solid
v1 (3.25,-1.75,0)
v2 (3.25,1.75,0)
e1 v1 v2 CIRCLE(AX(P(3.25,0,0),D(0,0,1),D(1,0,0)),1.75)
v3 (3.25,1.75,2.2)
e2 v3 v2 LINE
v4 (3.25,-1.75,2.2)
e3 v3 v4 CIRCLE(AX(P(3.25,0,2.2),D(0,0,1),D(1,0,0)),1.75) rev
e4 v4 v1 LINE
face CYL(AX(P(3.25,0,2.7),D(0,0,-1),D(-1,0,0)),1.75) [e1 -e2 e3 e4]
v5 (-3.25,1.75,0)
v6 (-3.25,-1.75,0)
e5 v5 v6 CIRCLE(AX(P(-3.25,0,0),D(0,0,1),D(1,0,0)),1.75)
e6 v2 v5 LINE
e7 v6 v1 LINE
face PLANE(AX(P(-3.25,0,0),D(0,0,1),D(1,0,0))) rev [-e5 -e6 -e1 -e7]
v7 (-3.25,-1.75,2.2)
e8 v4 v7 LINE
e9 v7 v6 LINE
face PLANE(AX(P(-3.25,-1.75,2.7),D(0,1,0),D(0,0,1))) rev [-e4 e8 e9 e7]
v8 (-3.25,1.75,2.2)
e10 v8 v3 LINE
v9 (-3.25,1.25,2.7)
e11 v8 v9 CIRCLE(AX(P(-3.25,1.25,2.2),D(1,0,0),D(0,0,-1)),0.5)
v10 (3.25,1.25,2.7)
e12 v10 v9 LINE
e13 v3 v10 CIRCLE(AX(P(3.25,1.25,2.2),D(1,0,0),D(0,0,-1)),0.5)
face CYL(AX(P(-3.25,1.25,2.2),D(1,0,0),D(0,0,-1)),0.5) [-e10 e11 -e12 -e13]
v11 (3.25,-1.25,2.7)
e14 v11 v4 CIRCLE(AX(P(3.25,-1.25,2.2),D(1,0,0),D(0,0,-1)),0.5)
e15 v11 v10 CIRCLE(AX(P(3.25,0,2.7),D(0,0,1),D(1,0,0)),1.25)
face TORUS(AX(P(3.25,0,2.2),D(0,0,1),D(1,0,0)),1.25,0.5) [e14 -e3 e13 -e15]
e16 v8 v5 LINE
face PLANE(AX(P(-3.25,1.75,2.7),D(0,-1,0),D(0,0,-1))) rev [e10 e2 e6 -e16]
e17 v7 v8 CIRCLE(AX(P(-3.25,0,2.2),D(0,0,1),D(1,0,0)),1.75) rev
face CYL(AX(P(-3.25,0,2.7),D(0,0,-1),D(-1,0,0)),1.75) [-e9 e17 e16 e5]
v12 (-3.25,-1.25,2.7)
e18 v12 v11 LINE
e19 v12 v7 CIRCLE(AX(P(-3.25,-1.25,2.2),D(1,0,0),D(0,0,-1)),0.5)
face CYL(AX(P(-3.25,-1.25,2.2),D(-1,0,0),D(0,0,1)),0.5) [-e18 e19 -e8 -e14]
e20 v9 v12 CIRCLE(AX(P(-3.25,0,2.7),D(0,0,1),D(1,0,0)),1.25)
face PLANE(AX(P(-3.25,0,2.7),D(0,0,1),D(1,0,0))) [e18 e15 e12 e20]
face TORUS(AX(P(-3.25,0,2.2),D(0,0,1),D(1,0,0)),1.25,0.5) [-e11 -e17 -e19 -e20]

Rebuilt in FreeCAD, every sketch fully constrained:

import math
import FreeCAD as App
import Part
import Sketcher


def edges_at(feature, points):
    """Names of the edges that pass closest to the given points."""
    edges = feature.Shape.Edges
    near = lambda p: min(range(len(edges)), key=lambda i: edges[i].distToShape(Part.Vertex(*p))[0])
    return sorted({f"Edge{near(p) + 1}" for p in points})

doc = App.newDocument("Part")
params = doc.addObject("Spreadsheet::Sheet", "Params")
for row, (alias, value) in enumerate([
    ("sketch1_radius", "1.75 mm"),
    ("sketch1_width", "6.5 mm"),
    ("pad1_length", "2.7 mm"),
    ("fillet_radius", "0.5 mm"),
], start=1):
    params.set(f"A{row}", alias)
    params.set(f"B{row}", "=" + value)
    params.setAlias(f"B{row}", alias)

body = doc.addObject("PartDesign::Body", "Body")

# Sketch on XY plane
sketch1 = body.newObject("Sketcher::SketchObject", "Sketch")
sketch1.AttachmentSupport = (doc.getObject("XY_Plane"), [""])
sketch1.MapMode = "FlatFace"
sketch1.addGeometry([
    Part.LineSegment(App.Vector(3.2, 1.8, 0), App.Vector(-3.2, 1.8, 0)),
    Part.ArcOfCircle(Part.Circle(App.Vector(-3.2, 0, 0), App.Vector(0, 0, 1), 1.8), math.radians(90), math.radians(270)),
    Part.LineSegment(App.Vector(-3.2, -1.8, 0), App.Vector(3.2, -1.8, 0)),
    Part.ArcOfCircle(Part.Circle(App.Vector(3.2, 0, 0), App.Vector(0, 0, 1), 1.8), math.radians(-90), math.radians(90)),
], False)
sketch1.addConstraint([
    Sketcher.Constraint("Tangent", 0, 2, 1, 1),
    Sketcher.Constraint("Tangent", 1, 2, 2, 1),
    Sketcher.Constraint("Tangent", 2, 2, 3, 1),
    Sketcher.Constraint("Tangent", 3, 2, 0, 1),
    Sketcher.Constraint("Horizontal", 0),
    Sketcher.Constraint("Horizontal", 2),
    Sketcher.Constraint("Symmetric", 1, 3, 3, 3, -1, 1),
    Sketcher.Constraint("Radius", 1, 1.75),
    Sketcher.Constraint("DistanceX", 0, 2, 0, 1, 6.5),
])
sketch1.setExpression("Constraints[7]", "Params.sketch1_radius")
sketch1.setExpression("Constraints[8]", "Params.sketch1_width")
pad1 = body.newObject("PartDesign::Pad", "Pad")
pad1.Profile = sketch1
pad1.setExpression("Length", "Params.pad1_length")
doc.recompute()

fillet = body.newObject("PartDesign::Fillet", "Fillet")
fillet.Base = (pad1, edges_at(pad1, [
    (5, 0, 2.7),
    (0, 1.75, 2.7),
    (-5, 0, 2.7),
    (0, -1.75, 2.7),
]))
fillet.setExpression("Radius", "Params.fillet_radius")

doc.recompute()
